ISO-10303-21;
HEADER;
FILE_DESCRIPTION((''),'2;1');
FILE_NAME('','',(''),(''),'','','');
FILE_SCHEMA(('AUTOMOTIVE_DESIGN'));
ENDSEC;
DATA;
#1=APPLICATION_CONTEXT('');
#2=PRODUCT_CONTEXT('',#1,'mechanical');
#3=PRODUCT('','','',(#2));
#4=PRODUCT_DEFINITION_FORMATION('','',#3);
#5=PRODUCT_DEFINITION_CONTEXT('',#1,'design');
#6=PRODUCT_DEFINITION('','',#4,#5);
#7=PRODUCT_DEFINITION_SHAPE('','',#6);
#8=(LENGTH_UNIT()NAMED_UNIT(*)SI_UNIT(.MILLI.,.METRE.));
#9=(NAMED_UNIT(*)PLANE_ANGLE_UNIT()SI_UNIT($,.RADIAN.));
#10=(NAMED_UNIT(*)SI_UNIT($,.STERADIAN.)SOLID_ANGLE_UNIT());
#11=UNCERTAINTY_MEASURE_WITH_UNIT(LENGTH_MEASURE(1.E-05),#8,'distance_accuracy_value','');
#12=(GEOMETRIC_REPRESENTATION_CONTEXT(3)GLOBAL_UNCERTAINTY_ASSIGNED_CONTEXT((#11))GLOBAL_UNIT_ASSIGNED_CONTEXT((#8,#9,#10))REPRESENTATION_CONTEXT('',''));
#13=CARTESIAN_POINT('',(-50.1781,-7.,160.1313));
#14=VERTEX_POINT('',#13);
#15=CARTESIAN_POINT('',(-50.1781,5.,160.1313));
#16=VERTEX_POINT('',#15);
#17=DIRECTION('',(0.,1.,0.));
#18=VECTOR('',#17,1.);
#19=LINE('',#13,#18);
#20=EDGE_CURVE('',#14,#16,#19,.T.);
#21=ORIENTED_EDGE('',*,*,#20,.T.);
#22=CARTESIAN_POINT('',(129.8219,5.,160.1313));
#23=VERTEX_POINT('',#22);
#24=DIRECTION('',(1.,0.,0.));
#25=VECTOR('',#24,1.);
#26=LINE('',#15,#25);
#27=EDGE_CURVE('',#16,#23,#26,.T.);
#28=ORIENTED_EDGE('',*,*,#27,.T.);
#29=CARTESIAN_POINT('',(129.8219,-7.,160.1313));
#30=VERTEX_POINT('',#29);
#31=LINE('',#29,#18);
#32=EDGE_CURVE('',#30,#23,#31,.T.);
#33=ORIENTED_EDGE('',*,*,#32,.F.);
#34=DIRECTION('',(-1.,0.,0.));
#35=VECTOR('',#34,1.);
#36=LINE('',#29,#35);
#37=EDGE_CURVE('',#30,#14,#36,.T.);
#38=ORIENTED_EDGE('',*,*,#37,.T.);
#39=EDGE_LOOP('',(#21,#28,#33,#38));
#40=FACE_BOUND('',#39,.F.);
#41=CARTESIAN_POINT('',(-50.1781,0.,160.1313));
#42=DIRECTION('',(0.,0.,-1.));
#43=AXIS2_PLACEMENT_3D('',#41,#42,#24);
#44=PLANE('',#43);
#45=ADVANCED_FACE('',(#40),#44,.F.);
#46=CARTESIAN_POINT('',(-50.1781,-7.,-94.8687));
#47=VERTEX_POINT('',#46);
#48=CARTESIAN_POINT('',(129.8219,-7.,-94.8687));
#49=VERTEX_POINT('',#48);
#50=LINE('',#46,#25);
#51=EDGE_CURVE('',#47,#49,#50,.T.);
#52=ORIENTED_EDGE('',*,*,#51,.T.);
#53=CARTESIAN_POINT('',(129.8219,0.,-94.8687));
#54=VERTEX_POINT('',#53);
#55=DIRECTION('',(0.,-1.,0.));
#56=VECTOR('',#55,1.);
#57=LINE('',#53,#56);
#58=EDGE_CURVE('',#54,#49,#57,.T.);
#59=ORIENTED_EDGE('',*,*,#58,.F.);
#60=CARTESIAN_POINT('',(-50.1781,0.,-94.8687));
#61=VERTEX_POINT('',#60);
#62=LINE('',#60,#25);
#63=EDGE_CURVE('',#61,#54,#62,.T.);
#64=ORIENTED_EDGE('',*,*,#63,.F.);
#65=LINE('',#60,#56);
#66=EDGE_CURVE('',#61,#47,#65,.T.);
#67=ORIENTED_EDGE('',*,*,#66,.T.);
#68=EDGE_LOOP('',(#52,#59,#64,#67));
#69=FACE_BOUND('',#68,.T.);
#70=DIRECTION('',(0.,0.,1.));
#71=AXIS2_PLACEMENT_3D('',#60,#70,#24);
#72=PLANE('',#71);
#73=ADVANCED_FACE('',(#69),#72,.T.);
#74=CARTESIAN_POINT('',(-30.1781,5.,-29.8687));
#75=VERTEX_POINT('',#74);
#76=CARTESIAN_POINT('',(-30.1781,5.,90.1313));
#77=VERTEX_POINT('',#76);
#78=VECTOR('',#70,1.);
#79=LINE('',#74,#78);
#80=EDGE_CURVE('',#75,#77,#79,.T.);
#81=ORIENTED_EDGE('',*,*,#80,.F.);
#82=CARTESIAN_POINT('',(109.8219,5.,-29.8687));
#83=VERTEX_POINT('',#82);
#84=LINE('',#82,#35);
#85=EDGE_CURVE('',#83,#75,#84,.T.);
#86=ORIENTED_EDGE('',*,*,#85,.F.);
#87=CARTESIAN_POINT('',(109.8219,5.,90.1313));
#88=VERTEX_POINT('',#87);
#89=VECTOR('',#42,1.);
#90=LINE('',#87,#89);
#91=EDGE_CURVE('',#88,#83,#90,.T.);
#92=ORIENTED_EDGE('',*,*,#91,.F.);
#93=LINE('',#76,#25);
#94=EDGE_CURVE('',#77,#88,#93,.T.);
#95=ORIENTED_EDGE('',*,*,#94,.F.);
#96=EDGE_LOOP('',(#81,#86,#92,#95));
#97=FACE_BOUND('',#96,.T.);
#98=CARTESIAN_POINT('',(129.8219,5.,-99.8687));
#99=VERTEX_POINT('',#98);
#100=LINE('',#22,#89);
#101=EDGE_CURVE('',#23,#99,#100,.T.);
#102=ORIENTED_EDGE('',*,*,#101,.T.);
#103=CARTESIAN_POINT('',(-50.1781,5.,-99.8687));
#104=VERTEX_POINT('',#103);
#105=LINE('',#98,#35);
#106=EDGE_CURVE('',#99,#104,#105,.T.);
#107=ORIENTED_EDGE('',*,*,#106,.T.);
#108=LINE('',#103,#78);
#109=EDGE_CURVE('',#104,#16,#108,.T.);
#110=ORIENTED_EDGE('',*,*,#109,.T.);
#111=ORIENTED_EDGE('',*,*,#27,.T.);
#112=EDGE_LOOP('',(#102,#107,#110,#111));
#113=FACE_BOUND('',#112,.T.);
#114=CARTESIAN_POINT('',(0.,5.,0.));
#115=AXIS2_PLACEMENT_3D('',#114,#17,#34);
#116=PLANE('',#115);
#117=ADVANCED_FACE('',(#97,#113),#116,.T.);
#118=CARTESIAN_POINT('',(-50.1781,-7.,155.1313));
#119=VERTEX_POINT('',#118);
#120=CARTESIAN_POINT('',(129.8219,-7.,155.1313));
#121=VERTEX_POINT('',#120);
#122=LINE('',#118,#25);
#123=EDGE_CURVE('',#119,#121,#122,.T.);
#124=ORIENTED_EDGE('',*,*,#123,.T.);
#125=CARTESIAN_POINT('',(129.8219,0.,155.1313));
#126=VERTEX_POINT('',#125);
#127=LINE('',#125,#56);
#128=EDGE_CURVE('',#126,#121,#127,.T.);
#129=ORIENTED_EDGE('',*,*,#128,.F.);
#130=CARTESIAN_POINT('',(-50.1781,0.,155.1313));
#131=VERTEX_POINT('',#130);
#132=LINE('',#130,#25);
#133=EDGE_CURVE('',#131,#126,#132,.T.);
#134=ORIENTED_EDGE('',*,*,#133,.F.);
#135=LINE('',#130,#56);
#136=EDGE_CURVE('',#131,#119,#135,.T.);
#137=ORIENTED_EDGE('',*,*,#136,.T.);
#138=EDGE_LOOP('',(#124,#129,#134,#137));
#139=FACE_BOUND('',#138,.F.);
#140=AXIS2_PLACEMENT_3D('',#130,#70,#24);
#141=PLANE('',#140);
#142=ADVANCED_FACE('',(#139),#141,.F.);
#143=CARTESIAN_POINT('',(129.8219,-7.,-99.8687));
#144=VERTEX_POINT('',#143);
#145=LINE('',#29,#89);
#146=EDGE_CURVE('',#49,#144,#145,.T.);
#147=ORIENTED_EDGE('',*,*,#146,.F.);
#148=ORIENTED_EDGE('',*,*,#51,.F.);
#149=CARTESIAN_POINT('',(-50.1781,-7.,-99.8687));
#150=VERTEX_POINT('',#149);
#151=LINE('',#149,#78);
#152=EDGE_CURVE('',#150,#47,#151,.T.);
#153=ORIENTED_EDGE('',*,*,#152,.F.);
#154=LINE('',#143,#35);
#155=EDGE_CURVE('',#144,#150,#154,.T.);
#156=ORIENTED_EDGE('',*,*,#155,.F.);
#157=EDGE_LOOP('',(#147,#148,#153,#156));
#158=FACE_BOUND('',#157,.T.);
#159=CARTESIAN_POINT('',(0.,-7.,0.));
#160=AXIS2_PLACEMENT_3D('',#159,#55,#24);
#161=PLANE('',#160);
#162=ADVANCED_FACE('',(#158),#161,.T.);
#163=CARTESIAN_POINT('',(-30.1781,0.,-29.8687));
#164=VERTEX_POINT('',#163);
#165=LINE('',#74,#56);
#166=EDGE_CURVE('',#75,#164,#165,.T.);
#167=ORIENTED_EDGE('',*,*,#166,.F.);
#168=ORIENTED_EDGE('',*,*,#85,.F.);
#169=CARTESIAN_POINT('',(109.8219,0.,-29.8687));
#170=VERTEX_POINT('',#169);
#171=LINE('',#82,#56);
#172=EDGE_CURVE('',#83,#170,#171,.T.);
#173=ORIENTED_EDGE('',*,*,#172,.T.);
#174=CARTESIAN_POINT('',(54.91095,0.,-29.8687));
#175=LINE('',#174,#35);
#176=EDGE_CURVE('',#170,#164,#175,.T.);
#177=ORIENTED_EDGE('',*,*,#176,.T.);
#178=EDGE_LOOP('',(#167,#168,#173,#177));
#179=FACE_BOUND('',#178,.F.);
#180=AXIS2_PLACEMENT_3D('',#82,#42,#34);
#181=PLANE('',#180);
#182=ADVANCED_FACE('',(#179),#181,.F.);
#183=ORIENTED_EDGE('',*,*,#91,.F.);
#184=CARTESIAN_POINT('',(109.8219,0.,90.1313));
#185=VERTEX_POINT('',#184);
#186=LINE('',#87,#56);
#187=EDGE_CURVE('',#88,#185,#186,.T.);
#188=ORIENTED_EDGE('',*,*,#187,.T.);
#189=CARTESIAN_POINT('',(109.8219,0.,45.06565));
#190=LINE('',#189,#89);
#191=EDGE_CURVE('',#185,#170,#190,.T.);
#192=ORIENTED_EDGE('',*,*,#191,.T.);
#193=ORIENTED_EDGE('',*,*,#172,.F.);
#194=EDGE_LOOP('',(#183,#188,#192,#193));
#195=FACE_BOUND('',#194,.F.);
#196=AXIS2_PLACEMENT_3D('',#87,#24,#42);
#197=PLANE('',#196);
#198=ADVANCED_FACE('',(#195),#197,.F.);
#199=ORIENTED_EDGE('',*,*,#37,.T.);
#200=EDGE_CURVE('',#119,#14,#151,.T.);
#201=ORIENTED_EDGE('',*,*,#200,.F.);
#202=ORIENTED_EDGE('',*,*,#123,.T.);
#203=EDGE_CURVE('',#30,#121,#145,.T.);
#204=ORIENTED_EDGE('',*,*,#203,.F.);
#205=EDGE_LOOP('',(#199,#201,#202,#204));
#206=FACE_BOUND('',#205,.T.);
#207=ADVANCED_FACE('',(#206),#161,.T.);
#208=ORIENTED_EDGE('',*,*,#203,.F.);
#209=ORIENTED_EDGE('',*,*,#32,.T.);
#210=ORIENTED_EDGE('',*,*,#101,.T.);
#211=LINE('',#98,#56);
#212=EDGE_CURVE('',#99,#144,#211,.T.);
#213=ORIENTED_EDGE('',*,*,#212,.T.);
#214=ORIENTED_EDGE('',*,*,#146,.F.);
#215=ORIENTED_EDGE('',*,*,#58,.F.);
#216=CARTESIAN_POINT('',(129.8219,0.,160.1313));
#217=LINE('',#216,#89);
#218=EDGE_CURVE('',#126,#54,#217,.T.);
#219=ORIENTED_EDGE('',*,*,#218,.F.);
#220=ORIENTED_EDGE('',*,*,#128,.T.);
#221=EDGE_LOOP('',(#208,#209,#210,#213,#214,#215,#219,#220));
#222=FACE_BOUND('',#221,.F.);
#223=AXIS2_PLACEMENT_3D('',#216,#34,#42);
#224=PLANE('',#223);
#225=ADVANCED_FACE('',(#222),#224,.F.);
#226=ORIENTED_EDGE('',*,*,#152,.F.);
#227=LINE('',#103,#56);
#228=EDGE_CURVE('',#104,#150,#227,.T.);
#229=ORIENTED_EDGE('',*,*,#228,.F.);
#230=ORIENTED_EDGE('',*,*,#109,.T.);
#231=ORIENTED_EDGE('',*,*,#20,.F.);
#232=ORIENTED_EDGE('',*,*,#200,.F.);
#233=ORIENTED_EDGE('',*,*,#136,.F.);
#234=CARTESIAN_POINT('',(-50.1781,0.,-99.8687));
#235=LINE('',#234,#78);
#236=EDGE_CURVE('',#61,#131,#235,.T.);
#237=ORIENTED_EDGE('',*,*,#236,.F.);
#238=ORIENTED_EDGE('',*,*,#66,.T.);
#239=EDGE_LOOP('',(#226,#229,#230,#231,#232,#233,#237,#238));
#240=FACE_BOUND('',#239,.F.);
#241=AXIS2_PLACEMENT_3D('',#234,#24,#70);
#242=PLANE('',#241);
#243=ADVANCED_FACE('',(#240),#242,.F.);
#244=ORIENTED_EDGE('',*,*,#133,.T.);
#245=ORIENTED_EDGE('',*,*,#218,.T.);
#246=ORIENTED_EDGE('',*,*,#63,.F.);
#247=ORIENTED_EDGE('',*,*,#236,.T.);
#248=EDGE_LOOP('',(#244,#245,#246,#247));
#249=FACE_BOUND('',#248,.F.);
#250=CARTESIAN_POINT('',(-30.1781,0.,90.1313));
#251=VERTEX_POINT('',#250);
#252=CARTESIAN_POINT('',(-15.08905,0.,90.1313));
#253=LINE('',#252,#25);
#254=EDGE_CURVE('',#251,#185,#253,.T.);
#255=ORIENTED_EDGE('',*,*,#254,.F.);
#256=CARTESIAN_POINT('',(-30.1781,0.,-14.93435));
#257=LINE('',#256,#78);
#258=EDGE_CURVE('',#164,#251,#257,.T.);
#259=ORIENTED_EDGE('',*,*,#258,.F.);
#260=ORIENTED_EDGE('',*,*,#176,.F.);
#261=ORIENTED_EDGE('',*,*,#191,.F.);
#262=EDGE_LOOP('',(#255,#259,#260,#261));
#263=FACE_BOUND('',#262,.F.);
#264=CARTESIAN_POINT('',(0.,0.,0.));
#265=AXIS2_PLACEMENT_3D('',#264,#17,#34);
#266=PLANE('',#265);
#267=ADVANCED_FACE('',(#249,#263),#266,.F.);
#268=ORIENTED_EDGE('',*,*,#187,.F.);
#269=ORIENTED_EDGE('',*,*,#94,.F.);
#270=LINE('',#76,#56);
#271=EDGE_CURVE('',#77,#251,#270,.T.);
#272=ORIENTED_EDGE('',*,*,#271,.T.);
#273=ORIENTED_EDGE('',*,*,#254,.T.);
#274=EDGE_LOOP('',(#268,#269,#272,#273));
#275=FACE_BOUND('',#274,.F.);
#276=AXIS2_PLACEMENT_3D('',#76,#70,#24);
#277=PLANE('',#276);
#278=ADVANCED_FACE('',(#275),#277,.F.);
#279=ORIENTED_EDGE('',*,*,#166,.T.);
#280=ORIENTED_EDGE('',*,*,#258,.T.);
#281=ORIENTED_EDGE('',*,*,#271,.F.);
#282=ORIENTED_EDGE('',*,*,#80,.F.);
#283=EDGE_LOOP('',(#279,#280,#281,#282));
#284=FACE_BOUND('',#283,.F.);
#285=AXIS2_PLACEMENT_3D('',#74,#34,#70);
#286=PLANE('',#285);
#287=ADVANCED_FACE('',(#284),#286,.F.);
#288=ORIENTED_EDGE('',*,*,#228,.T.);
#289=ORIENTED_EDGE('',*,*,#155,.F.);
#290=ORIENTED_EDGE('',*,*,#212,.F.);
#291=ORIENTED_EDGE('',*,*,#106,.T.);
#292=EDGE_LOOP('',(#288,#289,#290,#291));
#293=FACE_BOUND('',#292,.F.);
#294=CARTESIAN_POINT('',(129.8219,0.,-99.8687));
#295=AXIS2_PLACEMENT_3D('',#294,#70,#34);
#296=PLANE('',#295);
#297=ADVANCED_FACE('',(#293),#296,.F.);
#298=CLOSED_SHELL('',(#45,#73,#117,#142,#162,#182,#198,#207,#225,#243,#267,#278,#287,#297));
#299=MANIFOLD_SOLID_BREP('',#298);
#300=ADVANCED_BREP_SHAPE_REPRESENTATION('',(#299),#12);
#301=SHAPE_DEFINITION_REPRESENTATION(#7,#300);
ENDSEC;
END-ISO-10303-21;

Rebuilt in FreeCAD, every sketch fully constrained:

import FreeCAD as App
import Part
import Sketcher

doc = App.newDocument("Part")
body = doc.addObject("PartDesign::Body", "Body")

# Sketch on XZ plane
sketch1 = doc.addObject("Sketcher::SketchObject", "Sketch")
body.addObject(sketch1)
sketch1.AttachmentSupport = (doc.XZ_Plane, [""])
sketch1.MapMode = "FlatFace"
sketch1.addGeometry([
    Part.LineSegment(App.Vector(-50, -100, 0), App.Vector(-50, 160, 0)),
    Part.LineSegment(App.Vector(-50, 160, 0), App.Vector(130, 160, 0)),
    Part.LineSegment(App.Vector(130, 160, 0), App.Vector(130, -100, 0)),
    Part.LineSegment(App.Vector(130, -100, 0), App.Vector(-50, -100, 0)),
], False)
sketch1.addConstraint([
    Sketcher.Constraint("Coincident", 0, 2, 1, 1),
    Sketcher.Constraint("Coincident", 1, 2, 2, 1),
    Sketcher.Constraint("Coincident", 2, 2, 3, 1),
    Sketcher.Constraint("Coincident", 3, 2, 0, 1),
    Sketcher.Constraint("Vertical", 0),
    Sketcher.Constraint("Horizontal", 1),
    Sketcher.Constraint("Vertical", 2),
    Sketcher.Constraint("Horizontal", 3),
    Sketcher.Constraint("DistanceX", 1, 1, 1, 2, 180.0),
    Sketcher.Constraint("DistanceY", 0, 1, 0, 2, 260.0),
    Sketcher.Constraint("DistanceX", 0, 2, -1, 1, 50.178),
    Sketcher.Constraint("DistanceY", -1, 1, 0, 2, 160.1313),
])
pad1 = doc.addObject("PartDesign::Pad", "Pad")
body.addObject(pad1)
pad1.Profile = sketch1
pad1.Length = 5
pad1.Reversed = True

# Sketch on XZ plane
sketch2 = doc.addObject("Sketcher::SketchObject", "Sketch001")
body.addObject(sketch2)
sketch2.AttachmentSupport = (doc.XZ_Plane, [""])
sketch2.MapMode = "FlatFace"
sketch2.addGeometry([
    Part.LineSegment(App.Vector(130, 155, 0), App.Vector(130, 160, 0)),  # 0
    Part.LineSegment(App.Vector(130, 160, 0), App.Vector(-50, 160, 0)),  # 1
    Part.LineSegment(App.Vector(-50, 160, 0), App.Vector(-50, 155, 0)),  # 2
    Part.LineSegment(App.Vector(-50, 155, 0), App.Vector(130, 155, 0)),  # 3
    Part.LineSegment(App.Vector(130, -100, 0), App.Vector(130, -95, 0)),  # 4
    Part.LineSegment(App.Vector(130, -95, 0), App.Vector(-50, -95, 0)),  # 5
    Part.LineSegment(App.Vector(-50, -95, 0), App.Vector(-50, -100, 0)),  # 6
    Part.LineSegment(App.Vector(-50, -100, 0), App.Vector(130, -100, 0)),  # 7
], False)
sketch2.addConstraint([
    Sketcher.Constraint("Coincident", 0, 2, 1, 1),
    Sketcher.Constraint("Coincident", 1, 2, 2, 1),
    Sketcher.Constraint("Coincident", 2, 2, 3, 1),
    Sketcher.Constraint("Coincident", 3, 2, 0, 1),
    Sketcher.Constraint("Coincident", 4, 2, 5, 1),
    Sketcher.Constraint("Coincident", 5, 2, 6, 1),
    Sketcher.Constraint("Coincident", 6, 2, 7, 1),
    Sketcher.Constraint("Coincident", 7, 2, 4, 1),
    Sketcher.Constraint("Vertical", 0),
    Sketcher.Constraint("Horizontal", 1),
    Sketcher.Constraint("Vertical", 2),
    Sketcher.Constraint("Horizontal", 3),
    Sketcher.Constraint("Vertical", 4),
    Sketcher.Constraint("Horizontal", 5),
    Sketcher.Constraint("Vertical", 6),
    Sketcher.Constraint("Horizontal", 7),
    Sketcher.Constraint("Vertical", 3, 2, 4, 2),
    Sketcher.Constraint("Vertical", 2, 2, 5, 2),
    Sketcher.Constraint("Equal", 2, 4),
    Sketcher.Constraint("DistanceY", 0, 1, 0, 2, 5.0),
    Sketcher.Constraint("DistanceX", 1, 2, 1, 1, 180.0),
    Sketcher.Constraint("DistanceY", 4, 2, 3, 2, 250.0),
    Sketcher.Constraint("DistanceX", -1, 1, 0, 2, 129.822),
    Sketcher.Constraint("DistanceY", -1, 1, 0, 2, 160.1313),
])
pad2 = doc.addObject("PartDesign::Pad", "Pad001")
body.addObject(pad2)
pad2.Profile = sketch2
pad2.Length = 7

# Sketch on XZ plane
sketch3 = doc.addObject("Sketcher::SketchObject", "Sketch002")
body.addObject(sketch3)
sketch3.AttachmentSupport = (doc.XZ_Plane, [""])
sketch3.MapMode = "FlatFace"
sketch3.AttachmentOffset = App.Placement(App.Vector(0, 0, -5), App.Rotation())
sketch3.addGeometry([
    Part.LineSegment(App.Vector(110, 90, 0), App.Vector(110, -30, 0)),
    Part.LineSegment(App.Vector(110, -30, 0), App.Vector(-30, -30, 0)),
    Part.LineSegment(App.Vector(-30, -30, 0), App.Vector(-30, 90, 0)),
    Part.LineSegment(App.Vector(-30, 90, 0), App.Vector(110, 90, 0)),
], False)
sketch3.addConstraint([
    Sketcher.Constraint("Coincident", 0, 2, 1, 1),
    Sketcher.Constraint("Coincident", 1, 2, 2, 1),
    Sketcher.Constraint("Coincident", 2, 2, 3, 1),
    Sketcher.Constraint("Coincident", 3, 2, 0, 1),
    Sketcher.Constraint("Vertical", 0),
    Sketcher.Constraint("Horizontal", 1),
    Sketcher.Constraint("Vertical", 2),
    Sketcher.Constraint("Horizontal", 3),
    Sketcher.Constraint("DistanceX", 1, 2, 1, 1, 140.0),
    Sketcher.Constraint("DistanceY", 0, 2, 0, 1, 120.0),
    Sketcher.Constraint("DistanceX", -1, 1, 0, 2, 109.822),
    Sketcher.Constraint("DistanceY", 0, 2, -1, 1, 29.8687),
])
pocket1 = doc.addObject("PartDesign::Pocket", "Pocket")
body.addObject(pocket1)
pocket1.Profile = sketch3
pocket1.Type = "ThroughAll"
pocket1.Reversed = True

doc.recompute()
